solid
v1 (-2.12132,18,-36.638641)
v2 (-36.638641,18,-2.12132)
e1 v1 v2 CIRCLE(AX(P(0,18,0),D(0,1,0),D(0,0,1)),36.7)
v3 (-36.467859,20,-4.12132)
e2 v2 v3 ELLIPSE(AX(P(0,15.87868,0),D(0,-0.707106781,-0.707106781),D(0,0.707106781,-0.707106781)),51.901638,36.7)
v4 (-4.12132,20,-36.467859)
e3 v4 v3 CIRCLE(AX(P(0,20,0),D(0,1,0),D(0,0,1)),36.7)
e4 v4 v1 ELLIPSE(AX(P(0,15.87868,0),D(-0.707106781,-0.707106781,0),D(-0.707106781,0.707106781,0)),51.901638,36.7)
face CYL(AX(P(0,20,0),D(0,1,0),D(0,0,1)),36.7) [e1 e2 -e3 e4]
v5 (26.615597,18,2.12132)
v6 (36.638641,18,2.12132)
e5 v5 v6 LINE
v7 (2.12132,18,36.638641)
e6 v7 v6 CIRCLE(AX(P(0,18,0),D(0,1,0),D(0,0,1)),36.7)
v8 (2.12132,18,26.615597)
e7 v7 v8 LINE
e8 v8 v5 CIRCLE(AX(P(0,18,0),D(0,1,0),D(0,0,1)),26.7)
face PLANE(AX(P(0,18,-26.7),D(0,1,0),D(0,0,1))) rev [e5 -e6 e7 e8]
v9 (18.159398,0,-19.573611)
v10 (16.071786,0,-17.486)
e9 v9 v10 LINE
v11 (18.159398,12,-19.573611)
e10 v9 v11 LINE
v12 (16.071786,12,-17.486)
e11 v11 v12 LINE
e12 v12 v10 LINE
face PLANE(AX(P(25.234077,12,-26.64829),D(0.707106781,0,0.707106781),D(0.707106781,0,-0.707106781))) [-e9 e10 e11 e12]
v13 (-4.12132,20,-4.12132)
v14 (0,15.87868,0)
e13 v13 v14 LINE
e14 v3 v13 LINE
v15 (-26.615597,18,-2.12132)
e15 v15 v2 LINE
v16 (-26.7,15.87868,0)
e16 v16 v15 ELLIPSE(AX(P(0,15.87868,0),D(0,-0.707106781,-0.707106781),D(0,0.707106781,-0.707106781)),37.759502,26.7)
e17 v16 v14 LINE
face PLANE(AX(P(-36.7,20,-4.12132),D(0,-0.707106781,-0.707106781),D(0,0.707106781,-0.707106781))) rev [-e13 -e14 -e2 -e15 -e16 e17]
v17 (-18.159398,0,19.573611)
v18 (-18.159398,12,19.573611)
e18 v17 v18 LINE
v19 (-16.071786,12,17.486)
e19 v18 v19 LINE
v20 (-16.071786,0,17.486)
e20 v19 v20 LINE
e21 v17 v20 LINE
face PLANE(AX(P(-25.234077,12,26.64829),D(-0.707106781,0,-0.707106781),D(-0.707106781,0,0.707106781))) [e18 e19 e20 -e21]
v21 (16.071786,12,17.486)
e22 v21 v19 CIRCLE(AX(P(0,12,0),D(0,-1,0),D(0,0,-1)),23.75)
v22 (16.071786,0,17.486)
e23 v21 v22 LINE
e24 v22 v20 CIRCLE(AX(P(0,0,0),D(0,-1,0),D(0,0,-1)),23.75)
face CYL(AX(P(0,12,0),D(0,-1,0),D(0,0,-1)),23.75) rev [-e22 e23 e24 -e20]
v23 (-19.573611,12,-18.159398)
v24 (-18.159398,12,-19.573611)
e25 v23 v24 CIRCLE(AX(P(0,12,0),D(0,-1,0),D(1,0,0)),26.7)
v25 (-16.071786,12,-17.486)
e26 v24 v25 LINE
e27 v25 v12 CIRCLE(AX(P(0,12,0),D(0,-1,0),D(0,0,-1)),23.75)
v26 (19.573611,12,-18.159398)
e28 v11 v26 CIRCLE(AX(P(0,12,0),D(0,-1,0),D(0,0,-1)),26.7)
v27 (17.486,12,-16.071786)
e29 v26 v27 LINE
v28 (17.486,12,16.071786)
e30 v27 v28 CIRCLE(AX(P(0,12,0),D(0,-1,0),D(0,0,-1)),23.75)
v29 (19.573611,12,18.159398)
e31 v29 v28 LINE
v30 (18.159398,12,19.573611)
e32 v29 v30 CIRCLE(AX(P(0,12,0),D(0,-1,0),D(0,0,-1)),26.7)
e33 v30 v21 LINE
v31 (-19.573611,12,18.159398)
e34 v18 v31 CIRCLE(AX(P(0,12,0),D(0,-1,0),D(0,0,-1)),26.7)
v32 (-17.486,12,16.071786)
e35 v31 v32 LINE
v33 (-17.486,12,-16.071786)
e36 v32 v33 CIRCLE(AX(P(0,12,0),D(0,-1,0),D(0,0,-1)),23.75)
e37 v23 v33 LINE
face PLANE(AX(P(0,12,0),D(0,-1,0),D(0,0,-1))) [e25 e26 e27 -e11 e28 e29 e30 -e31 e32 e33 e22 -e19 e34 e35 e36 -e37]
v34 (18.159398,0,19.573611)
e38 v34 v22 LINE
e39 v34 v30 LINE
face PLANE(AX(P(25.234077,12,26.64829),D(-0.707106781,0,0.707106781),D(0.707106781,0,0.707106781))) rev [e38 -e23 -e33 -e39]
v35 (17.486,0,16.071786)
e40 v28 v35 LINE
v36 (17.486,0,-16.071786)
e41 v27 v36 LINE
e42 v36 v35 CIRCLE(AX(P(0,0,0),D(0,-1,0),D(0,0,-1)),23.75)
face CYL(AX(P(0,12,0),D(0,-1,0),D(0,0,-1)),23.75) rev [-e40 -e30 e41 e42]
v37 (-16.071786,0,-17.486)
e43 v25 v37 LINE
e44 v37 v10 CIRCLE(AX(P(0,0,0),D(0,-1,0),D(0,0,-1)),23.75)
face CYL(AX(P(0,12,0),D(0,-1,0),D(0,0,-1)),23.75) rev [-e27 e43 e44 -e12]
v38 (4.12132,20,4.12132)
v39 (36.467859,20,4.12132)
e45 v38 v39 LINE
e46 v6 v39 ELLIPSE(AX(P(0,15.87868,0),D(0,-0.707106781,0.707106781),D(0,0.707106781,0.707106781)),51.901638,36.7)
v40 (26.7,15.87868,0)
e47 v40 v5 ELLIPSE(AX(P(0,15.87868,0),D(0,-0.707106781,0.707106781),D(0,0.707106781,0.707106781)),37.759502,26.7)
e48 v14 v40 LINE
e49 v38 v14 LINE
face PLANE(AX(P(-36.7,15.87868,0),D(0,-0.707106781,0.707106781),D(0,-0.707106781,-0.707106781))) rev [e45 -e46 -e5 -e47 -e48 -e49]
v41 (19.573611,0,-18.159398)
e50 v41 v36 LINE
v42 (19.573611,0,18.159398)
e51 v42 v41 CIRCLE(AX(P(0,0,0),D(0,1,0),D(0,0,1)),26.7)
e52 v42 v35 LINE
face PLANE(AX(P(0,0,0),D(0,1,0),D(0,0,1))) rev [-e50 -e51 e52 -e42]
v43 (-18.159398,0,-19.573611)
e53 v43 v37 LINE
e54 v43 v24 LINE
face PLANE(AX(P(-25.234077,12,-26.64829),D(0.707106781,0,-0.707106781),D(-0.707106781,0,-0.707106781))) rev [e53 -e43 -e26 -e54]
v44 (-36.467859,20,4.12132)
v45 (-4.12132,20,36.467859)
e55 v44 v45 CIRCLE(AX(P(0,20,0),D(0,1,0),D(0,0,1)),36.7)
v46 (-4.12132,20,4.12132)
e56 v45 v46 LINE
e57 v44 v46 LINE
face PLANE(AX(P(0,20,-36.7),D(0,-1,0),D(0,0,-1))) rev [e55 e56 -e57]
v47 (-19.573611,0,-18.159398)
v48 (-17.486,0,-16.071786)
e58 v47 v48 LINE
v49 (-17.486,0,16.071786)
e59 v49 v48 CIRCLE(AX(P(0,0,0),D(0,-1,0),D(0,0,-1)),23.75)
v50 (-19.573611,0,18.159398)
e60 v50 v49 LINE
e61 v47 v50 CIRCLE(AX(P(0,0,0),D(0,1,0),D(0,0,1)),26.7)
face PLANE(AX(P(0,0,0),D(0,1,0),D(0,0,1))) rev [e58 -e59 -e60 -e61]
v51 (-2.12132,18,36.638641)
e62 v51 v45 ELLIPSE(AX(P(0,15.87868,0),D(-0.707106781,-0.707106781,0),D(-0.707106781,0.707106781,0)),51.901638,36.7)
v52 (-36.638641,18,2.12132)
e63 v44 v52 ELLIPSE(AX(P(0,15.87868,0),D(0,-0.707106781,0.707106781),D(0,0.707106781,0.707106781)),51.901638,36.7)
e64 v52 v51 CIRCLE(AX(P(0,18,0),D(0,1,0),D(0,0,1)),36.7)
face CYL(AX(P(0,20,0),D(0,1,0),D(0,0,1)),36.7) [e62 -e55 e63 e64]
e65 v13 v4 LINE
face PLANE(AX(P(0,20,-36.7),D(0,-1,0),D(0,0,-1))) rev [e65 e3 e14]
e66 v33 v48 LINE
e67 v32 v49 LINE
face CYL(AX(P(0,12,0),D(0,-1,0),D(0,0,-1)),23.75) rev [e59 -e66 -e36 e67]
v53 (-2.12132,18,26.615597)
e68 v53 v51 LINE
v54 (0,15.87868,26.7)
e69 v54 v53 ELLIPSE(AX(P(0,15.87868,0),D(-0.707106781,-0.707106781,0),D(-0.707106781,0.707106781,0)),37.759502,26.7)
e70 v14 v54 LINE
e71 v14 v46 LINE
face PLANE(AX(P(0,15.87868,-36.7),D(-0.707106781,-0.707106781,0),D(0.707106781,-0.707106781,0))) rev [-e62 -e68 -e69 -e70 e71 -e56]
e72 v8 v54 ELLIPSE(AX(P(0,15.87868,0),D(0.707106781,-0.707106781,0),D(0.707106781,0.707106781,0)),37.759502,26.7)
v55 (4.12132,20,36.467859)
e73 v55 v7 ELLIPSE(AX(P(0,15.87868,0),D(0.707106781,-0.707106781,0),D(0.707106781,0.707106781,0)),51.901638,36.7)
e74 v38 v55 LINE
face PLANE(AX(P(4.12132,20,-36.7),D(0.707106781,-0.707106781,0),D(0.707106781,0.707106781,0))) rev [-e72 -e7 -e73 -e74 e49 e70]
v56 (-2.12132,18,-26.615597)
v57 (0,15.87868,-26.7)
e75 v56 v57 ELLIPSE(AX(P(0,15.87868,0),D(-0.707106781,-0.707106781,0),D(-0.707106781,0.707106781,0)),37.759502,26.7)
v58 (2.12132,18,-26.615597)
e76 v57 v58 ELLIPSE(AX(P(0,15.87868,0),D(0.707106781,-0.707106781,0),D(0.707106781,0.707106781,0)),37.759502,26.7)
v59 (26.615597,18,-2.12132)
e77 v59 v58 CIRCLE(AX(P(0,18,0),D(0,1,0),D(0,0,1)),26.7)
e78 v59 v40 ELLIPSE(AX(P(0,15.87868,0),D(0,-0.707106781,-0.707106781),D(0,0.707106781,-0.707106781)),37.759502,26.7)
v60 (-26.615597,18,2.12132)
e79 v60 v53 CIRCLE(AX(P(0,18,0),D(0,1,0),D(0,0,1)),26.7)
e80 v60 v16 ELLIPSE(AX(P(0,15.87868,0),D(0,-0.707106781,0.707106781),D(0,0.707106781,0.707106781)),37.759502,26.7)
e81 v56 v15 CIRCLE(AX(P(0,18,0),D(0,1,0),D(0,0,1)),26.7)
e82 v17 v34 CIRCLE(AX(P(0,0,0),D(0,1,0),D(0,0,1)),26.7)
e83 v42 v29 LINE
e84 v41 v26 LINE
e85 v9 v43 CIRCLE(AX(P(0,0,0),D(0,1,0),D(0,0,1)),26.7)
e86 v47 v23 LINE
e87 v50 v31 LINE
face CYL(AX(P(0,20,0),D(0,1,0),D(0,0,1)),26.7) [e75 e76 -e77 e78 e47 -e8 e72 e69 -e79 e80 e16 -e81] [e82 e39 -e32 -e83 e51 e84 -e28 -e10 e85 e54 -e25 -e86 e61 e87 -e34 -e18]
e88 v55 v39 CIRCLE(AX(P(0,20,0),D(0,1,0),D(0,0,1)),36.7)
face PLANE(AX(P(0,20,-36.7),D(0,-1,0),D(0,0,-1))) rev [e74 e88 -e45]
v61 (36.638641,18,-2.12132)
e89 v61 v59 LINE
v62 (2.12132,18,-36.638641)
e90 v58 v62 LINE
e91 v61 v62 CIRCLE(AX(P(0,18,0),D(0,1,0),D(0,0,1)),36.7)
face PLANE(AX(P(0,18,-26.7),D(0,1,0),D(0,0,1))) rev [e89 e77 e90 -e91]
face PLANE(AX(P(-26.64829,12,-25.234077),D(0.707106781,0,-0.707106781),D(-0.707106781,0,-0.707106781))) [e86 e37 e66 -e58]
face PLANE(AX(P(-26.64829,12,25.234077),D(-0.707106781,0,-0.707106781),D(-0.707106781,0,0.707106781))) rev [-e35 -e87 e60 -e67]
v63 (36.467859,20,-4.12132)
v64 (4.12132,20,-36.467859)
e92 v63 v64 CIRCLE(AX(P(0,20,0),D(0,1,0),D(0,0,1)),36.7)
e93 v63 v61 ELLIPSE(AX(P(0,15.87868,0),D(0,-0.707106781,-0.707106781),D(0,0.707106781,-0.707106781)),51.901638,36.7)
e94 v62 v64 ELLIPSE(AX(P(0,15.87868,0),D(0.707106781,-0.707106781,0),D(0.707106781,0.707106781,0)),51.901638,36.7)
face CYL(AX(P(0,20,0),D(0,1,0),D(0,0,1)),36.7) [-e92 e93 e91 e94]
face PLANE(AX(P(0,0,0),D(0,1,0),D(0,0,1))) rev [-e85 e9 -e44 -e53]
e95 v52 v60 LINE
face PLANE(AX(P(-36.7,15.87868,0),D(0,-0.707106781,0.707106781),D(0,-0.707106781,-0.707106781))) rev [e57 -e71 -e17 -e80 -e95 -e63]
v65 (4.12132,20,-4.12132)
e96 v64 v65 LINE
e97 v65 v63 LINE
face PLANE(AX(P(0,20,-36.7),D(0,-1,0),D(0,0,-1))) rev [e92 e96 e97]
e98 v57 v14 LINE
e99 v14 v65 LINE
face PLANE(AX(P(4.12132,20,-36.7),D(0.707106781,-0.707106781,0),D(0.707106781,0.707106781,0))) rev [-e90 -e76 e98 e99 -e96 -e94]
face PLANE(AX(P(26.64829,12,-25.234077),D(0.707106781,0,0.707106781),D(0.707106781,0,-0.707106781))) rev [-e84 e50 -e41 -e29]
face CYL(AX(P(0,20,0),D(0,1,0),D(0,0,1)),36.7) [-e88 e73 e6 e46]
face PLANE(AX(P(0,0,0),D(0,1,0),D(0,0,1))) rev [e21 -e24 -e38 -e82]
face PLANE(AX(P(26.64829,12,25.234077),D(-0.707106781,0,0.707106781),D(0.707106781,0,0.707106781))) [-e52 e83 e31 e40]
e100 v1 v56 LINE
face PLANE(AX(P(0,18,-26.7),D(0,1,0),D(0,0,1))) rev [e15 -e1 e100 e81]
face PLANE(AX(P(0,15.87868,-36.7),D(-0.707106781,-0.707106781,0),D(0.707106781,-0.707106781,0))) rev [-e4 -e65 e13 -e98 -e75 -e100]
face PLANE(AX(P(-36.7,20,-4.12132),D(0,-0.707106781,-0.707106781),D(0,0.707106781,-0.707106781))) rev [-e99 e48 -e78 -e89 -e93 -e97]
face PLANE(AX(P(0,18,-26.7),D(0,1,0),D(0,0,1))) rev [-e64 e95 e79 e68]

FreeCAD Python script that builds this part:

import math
import FreeCAD as App
import Part
import Sketcher
from FreeCAD import Vector
Q = App.Units.Quantity


def add_polygon(sketch, points):
    """Adds a closed chain of lines whose ends are joined by coincident constraints."""
    first, n = sketch.GeometryCount, len(points)
    for a, b in zip(points, points[1:] + points[:1]):
        sketch.addGeometry(Part.LineSegment(App.Vector(*a, 0), App.Vector(*b, 0)), False)
    for i in range(n):
        sketch.addConstraint(Sketcher.Constraint("Coincident", first + i, 2, first + (i + 1) % n, 1))

doc = App.newDocument("Part")
body = doc.addObject("PartDesign::Body", "Body")

sketch1 = body.newObject("Sketcher::SketchObject", "Sketch")
sketch1.AttachmentSupport = (doc.getObject("YZ_Plane"), [""])
sketch1.MapMode = "FlatFace"
add_polygon(sketch1, [(0, 0), (0, -26.7), (18, -26.7), (18, -36.7), (20, -36.7), (20, 0)])
sketch1.addConstraint([
    Sketcher.Constraint("Vertical", 0),
    Sketcher.Constraint("Horizontal", 1),
    Sketcher.Constraint("Vertical", 2),
    Sketcher.Constraint("Horizontal", 3),
    Sketcher.Constraint("Vertical", 4),
    Sketcher.Constraint("Horizontal", 5),
    Sketcher.Constraint("Coincident", 5, 2, -1, 1),
    Sketcher.Constraint("DistanceX", 1, 1, 1, 2, 18.0),
    Sketcher.Constraint("DistanceX", 3, 1, 3, 2, 2.0),
    Sketcher.Constraint("DistanceY", 2, 2, 2, 1, 10.0),
    Sketcher.Constraint("DistanceY", 0, 2, 0, 1, 26.7),
])
revolution = body.newObject("PartDesign::Revolution", "Revolution")
revolution.Profile = sketch1
revolution.ReferenceAxis = (sketch1, ["H_Axis"])
revolution.Angle = 360

sketch2 = body.newObject("Sketcher::SketchObject", "Sketch001")
sketch2.AttachmentSupport = (doc.getObject("XY_Plane"), [""])
sketch2.MapMode = "FlatFace"
add_polygon(sketch2, [(0, 16), (4, 20), (-4, 20)])
sketch2.addConstraint([
    Sketcher.Constraint("Horizontal", 1),
    Sketcher.Constraint("PointOnObject", 2, 2, -2),
    Sketcher.Constraint("Perpendicular", 0, 2),
    Sketcher.Constraint("Equal", 0, 2),
    Sketcher.Constraint("DistanceY", -1, 1, 0, 2, 20.0),
    Sketcher.Constraint("DistanceX", 1, 2, 1, 1, 8.242641),
])
pocket1 = body.newObject("PartDesign::Pocket", "Pocket")
pocket1.Profile = sketch2
pocket1.Length = 113.243517
pocket1.Midplane = True
doc.recompute()

polarpattern = body.newObject("PartDesign::PolarPattern", "PolarPattern")
polarpattern.Originals = [pocket1]
polarpattern.Axis = (doc.getObject("Y_Axis"), [""])
polarpattern.Angle = 360
polarpattern.Occurrences = 4
body.Tip = polarpattern

sketch3 = body.newObject("Sketcher::SketchObject", "Sketch002")
sketch3.AttachmentSupport = (doc.getObject("XZ_Plane"), [""])
sketch3.MapMode = "FlatFace"
sketch3.addGeometry(Part.Circle(Vector(0, 0, 0), Vector(0, 0, 1), 24), False)
sketch3.addConstraint([
    Sketcher.Constraint("Coincident", 0, 3, -1, 1),
    Sketcher.Constraint("Diameter", 0, 47.5),
])
pocket2 = body.newObject("PartDesign::Pocket", "Pocket001")
pocket2.Profile = sketch3
pocket2.Length = 12

sketch4 = body.newObject("Sketcher::SketchObject", "Sketch003")
sketch4.AttachmentSupport = (doc.getObject("XZ_Plane"), [""])
sketch4.MapMode = "FlatFace"
sketch4.AttachmentOffset = App.Placement(Vector(0, 0, -12), App.Rotation())
sketch4.addGeometry([
    Part.LineSegment(Vector(-25.2, 26.6, 0), Vector(0, 1.4, 0)),
    Part.LineSegment(Vector(0, 1.4, 0), Vector(-1.4, 0, 0)),
    Part.LineSegment(Vector(-1.4, 0, 0), Vector(-26.6, 25.2, 0)),
    Part.ArcOfCircle(Part.Circle(Vector(0, 0, 0), Vector(0, 0, 1), 36.7), math.radians(133.44), math.radians(136.56)),
], False)
sketch4.addConstraint([
    Sketcher.Constraint("Coincident", 0, 2, 1, 1),
    Sketcher.Constraint("Coincident", 1, 2, 2, 1),
    Sketcher.Constraint("Coincident", 2, 2, 3, 2),
    Sketcher.Constraint("Coincident", 3, 1, 0, 1),
    Sketcher.Constraint("Coincident", 3, 3, -1, 1),
    Sketcher.Constraint("PointOnObject", 0, 2, -2),
    Sketcher.Constraint("PointOnObject", 1, 2, -1),
    Sketcher.Constraint("Perpendicular", 0, 1),
    Sketcher.Constraint("Perpendicular", 1, 2),
    Sketcher.Constraint("Radius", 3, 36.699999),
    Sketcher.Constraint("Angle", 0, Q("-45 deg")),
    Sketcher.Constraint("Distance", 1, 2.0),
])
pocket3 = body.newObject("PartDesign::Pocket", "Pocket002")
pocket3.Profile = sketch4
pocket3.Length = 12
pocket3.Reversed = True
doc.recompute()

polarpattern2 = body.newObject("PartDesign::PolarPattern", "PolarPattern001")
polarpattern2.Originals = [pocket3]
polarpattern2.Axis = (doc.getObject("Y_Axis"), [""])
polarpattern2.Angle = 360
polarpattern2.Occurrences = 4
body.Tip = polarpattern2

doc.recompute()
